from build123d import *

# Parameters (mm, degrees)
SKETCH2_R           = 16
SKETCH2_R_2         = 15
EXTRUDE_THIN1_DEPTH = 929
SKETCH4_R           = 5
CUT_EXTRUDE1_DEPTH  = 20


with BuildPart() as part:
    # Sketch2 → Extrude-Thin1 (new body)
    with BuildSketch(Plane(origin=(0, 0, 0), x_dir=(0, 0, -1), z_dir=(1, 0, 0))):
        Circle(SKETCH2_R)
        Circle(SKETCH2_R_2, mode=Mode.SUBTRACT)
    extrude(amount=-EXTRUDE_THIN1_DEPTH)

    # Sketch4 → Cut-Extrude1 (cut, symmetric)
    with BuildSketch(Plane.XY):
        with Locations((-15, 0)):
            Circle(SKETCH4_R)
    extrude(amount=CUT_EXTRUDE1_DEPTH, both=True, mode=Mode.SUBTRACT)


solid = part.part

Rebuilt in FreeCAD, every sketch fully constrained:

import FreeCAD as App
import Part
import Sketcher

V = App.Vector
Q = App.Units.Quantity

doc = App.newDocument("Part")
params = doc.addObject("Spreadsheet::Sheet", "Params")
for row, (alias, value) in enumerate([
    ("sketch1_diameter", "32 mm"),
    ("sketch1_diameter2", "30 mm"),
    ("pad1_length", "929 mm"),
    ("sketch2_diameter", "10 mm"),
    ("pocket1_length", "40 mm"),
], start=1):
    params.set(f"A{row}", alias)
    params.set(f"B{row}", "=" + value)
    params.setAlias(f"B{row}", alias)

body = doc.addObject("PartDesign::Body", "Body")

# Sketch on YZ plane
sketch1 = doc.addObject("Sketcher::SketchObject", "Sketch")
body.addObject(sketch1)
sketch1.AttachmentSupport = (doc.YZ_Plane, [""])
sketch1.MapMode = "FlatFace"
sketch1.addGeometry([
    Part.Circle(V(0, 0, 0), V(0, 0, 1), 16),
    Part.Circle(V(0, 0, 0), V(0, 0, 1), 15),
], False)
sketch1.addConstraint([
    Sketcher.Constraint("Coincident", 0, 3, -1, 1),
    Sketcher.Constraint("Coincident", 1, 3, -1, 1),
    Sketcher.Constraint("Diameter", 0, Q("32 mm")),
    Sketcher.Constraint("Diameter", 1, Q("30 mm")),
])
sketch1.setExpression("Constraints[2]", "Params.sketch1_diameter")
sketch1.setExpression("Constraints[3]", "Params.sketch1_diameter2")
pad1 = doc.addObject("PartDesign::Pad", "Pad")
body.addObject(pad1)
pad1.Profile = sketch1
pad1.setExpression("Length", "Params.pad1_length")
pad1.Reversed = True

# Sketch on XY plane
sketch2 = doc.addObject("Sketcher::SketchObject", "Sketch001")
body.addObject(sketch2)
sketch2.AttachmentSupport = (doc.XY_Plane, [""])
sketch2.MapMode = "FlatFace"
sketch2.addGeometry(Part.Circle(V(-15, 0, 0), V(0, 0, 1), 5), False)
sketch2.addConstraint([
    Sketcher.Constraint("PointOnObject", 0, 3, -1),
    Sketcher.Constraint("Diameter", 0, Q("10 mm")),
    Sketcher.Constraint("DistanceX", 0, 3, -1, 1, Q("15 mm")),
])
sketch2.setExpression("Constraints[1]", "Params.sketch2_diameter")
pocket1 = doc.addObject("PartDesign::Pocket", "Pocket")
body.addObject(pocket1)
pocket1.Profile = sketch2
pocket1.setExpression("Length", "Params.pocket1_length")
pocket1.Midplane = True

doc.recompute()
